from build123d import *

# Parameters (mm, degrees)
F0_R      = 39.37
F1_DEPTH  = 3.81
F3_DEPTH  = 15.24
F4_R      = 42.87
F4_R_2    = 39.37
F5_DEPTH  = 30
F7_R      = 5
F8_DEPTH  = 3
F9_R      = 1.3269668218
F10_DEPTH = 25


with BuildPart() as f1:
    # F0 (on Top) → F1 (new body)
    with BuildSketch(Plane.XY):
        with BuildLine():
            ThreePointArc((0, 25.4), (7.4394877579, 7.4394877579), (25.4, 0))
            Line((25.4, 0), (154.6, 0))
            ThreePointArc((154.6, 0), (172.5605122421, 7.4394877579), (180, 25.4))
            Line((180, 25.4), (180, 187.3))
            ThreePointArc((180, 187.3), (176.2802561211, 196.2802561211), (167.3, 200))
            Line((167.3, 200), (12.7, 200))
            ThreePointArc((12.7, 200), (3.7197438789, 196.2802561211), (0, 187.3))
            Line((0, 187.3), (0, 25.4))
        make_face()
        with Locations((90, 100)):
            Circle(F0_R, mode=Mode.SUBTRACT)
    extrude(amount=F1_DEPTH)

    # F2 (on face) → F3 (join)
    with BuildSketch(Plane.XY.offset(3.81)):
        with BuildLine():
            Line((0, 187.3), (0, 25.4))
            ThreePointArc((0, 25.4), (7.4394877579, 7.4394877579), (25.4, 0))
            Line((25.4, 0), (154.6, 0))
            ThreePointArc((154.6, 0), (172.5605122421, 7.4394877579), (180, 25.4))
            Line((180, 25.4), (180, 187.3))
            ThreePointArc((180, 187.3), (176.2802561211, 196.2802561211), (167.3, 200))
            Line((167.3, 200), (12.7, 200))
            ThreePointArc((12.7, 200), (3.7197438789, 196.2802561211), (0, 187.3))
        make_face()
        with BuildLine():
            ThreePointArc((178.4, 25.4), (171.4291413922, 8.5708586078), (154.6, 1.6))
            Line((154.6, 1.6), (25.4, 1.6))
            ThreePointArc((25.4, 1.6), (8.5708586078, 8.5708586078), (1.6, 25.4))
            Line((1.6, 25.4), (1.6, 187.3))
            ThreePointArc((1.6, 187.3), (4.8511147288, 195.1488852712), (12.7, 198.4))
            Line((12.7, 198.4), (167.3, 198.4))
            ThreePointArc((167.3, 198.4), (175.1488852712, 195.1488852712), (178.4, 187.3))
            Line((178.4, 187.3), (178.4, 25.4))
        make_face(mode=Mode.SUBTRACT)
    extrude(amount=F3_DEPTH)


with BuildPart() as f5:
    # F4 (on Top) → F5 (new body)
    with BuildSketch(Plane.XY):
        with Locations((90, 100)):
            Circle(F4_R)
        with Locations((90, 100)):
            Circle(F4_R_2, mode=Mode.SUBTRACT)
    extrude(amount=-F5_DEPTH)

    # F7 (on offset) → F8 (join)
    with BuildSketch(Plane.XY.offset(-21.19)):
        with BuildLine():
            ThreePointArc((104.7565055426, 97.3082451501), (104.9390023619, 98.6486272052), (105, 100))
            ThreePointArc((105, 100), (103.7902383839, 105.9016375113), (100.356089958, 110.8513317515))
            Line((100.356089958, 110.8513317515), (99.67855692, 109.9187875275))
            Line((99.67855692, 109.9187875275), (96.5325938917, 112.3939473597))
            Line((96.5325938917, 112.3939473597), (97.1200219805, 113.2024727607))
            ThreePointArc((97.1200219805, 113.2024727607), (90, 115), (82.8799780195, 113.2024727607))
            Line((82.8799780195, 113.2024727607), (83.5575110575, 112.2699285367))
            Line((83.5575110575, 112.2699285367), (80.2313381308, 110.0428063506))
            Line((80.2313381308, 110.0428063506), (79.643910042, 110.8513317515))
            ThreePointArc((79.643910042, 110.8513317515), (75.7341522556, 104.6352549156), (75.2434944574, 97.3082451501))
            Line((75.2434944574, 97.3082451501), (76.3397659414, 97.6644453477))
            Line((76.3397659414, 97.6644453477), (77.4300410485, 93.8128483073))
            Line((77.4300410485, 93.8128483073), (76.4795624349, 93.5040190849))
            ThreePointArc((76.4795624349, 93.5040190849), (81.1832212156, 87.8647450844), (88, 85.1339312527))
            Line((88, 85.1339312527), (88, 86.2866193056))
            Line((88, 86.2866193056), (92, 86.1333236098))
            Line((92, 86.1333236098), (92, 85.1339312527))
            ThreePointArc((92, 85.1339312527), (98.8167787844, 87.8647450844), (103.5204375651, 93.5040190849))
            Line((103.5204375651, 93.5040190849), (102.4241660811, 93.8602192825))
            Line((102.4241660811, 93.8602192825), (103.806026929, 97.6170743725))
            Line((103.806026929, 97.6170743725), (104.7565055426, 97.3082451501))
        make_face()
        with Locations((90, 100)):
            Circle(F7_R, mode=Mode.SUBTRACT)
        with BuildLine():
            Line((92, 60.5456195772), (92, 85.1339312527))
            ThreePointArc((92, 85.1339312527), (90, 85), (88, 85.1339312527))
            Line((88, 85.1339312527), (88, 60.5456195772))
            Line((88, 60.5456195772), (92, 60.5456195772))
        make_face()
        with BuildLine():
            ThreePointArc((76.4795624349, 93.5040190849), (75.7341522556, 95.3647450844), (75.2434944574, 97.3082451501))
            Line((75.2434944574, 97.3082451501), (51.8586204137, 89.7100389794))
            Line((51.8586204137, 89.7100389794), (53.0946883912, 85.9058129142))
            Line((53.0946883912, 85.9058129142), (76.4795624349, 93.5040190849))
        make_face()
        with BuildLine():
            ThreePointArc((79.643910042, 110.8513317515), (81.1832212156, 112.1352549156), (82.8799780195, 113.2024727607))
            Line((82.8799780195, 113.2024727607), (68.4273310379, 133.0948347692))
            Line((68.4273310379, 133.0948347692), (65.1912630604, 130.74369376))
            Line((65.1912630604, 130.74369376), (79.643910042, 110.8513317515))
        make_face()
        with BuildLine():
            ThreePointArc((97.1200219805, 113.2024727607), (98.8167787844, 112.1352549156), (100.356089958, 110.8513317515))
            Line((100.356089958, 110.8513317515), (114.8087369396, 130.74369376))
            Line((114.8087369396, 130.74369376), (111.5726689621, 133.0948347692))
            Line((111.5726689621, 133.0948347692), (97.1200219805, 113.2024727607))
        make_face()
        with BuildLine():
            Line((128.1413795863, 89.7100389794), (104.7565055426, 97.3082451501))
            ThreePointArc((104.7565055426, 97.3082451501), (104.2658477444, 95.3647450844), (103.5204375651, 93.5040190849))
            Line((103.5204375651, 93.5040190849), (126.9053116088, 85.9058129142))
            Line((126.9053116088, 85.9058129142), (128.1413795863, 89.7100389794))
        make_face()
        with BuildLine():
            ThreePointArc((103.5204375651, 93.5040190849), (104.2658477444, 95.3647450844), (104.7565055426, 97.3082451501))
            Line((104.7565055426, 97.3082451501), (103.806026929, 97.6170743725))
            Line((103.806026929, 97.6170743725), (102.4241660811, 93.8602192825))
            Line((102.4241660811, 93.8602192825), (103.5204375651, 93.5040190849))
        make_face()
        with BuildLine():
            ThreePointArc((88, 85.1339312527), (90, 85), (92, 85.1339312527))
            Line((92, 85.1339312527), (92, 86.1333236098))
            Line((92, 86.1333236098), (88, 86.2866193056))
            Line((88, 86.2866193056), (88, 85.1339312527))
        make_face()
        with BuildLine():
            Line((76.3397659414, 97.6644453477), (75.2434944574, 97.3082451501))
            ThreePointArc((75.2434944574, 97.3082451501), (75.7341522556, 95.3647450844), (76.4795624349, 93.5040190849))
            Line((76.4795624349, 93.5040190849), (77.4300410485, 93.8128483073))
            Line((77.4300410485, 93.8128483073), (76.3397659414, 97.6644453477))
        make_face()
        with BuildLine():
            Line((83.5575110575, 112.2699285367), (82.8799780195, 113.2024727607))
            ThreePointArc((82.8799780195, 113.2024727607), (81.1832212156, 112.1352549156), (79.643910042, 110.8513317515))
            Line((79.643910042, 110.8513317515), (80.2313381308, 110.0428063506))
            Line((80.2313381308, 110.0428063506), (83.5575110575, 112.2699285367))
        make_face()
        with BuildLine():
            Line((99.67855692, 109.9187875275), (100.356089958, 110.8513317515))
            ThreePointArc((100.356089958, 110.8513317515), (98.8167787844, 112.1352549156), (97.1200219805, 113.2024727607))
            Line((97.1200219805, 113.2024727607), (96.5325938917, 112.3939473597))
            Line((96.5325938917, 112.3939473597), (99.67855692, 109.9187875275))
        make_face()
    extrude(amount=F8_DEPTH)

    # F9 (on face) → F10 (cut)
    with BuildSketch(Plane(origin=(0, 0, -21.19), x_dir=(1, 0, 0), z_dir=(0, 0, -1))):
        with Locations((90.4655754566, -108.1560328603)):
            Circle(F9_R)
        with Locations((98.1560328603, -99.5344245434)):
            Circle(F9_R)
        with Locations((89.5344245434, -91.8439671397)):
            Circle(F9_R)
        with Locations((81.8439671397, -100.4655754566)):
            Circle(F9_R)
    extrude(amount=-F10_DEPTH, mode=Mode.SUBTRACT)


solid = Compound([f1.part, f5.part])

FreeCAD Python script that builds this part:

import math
import FreeCAD as App
import Part
import Sketcher
Q = App.Units.Quantity

doc = App.newDocument("Part")
body = doc.addObject("PartDesign::Body", "Body")

# Sketch on XY plane
sketch1 = doc.addObject("Sketcher::SketchObject", "Sketch")
body.addObject(sketch1)
sketch1.AttachmentSupport = (doc.XY_Plane, [""])
sketch1.MapMode = "FlatFace"
sketch1.addGeometry([
    Part.ArcOfCircle(Part.Circle(App.Vector(25.4, 25.4, 0), App.Vector(0, 0, 1), 25.4), math.radians(180), math.radians(270)),  # 0
    Part.LineSegment(App.Vector(25.4, 0, 0), App.Vector(154.6, 0, 0)),  # 1
    Part.ArcOfCircle(Part.Circle(App.Vector(154.6, 25.4, 0), App.Vector(0, 0, 1), 25.4), math.radians(-90), math.radians(0)),  # 2
    Part.LineSegment(App.Vector(180, 25.4, 0), App.Vector(180, 187.3, 0)),  # 3
    Part.ArcOfCircle(Part.Circle(App.Vector(167.3, 187.3, 0), App.Vector(0, 0, 1), 12.7), math.radians(0), math.radians(90)),  # 4
    Part.LineSegment(App.Vector(167.3, 200, 0), App.Vector(12.7, 200, 0)),  # 5
    Part.ArcOfCircle(Part.Circle(App.Vector(12.7, 187.3, 0), App.Vector(0, 0, 1), 12.7), math.radians(90), math.radians(180)),  # 6
    Part.LineSegment(App.Vector(0, 187.3, 0), App.Vector(0, 25.4, 0)),  # 7
    Part.Circle(App.Vector(90, 100, 0), App.Vector(0, 0, 1), 39.37),  # 8
], False)
sketch1.addConstraint([
    Sketcher.Constraint("Tangent", 0, 2, 1, 1),
    Sketcher.Constraint("Tangent", 1, 2, 2, 1),
    Sketcher.Constraint("Tangent", 2, 2, 3, 1),
    Sketcher.Constraint("Tangent", 3, 2, 4, 1),
    Sketcher.Constraint("Tangent", 4, 2, 5, 1),
    Sketcher.Constraint("Tangent", 5, 2, 6, 1),
    Sketcher.Constraint("Tangent", 6, 2, 7, 1),
    Sketcher.Constraint("Tangent", 7, 2, 0, 1),
    Sketcher.Constraint("Horizontal", 1),
    Sketcher.Constraint("Vertical", 3),
    Sketcher.Constraint("Horizontal", 5),
    Sketcher.Constraint("Vertical", 7),
    Sketcher.Constraint("Equal", 0, 2),
    Sketcher.Constraint("Equal", 4, 6),
    Sketcher.Constraint("PointOnObject", 0, 2, -1),
    Sketcher.Constraint("PointOnObject", 6, 2, -2),
    Sketcher.Constraint("Radius", 0, Q("25.4 mm")),
    Sketcher.Constraint("Radius", 4, Q("12.7 mm")),
    Sketcher.Constraint("Diameter", 8, Q("78.74 mm")),
    Sketcher.Constraint("DistanceX", 1, 1, 1, 2, Q("129.2 mm")),
    Sketcher.Constraint("DistanceY", 3, 1, 3, 2, Q("161.9 mm")),
    Sketcher.Constraint("DistanceX", -1, 1, 8, 3, Q("90 mm")),
    Sketcher.Constraint("DistanceY", -1, 1, 8, 3, Q("100 mm")),
])
pad1 = doc.addObject("PartDesign::Pad", "Pad")
body.addObject(pad1)
pad1.Profile = sketch1
pad1.Length = 3.81

# Sketch on XY plane
sketch2 = doc.addObject("Sketcher::SketchObject", "Sketch001")
body.addObject(sketch2)
sketch2.AttachmentSupport = (doc.XY_Plane, [""])
sketch2.MapMode = "FlatFace"
sketch2.AttachmentOffset = App.Placement(App.Vector(0, 0, 3.81), App.Rotation())
sketch2.addGeometry([
    Part.LineSegment(App.Vector(0, 187.3, 0), App.Vector(0, 25.4, 0)),  # 0
    Part.ArcOfCircle(Part.Circle(App.Vector(25.4, 25.4, 0), App.Vector(0, 0, 1), 25.4), math.radians(180), math.radians(270)),  # 1
    Part.LineSegment(App.Vector(25.4, 0, 0), App.Vector(154.6, 0, 0)),  # 2
    Part.ArcOfCircle(Part.Circle(App.Vector(154.6, 25.4, 0), App.Vector(0, 0, 1), 25.4), math.radians(-90), math.radians(0)),  # 3
    Part.LineSegment(App.Vector(180, 25.4, 0), App.Vector(180, 187.3, 0)),  # 4
    Part.ArcOfCircle(Part.Circle(App.Vector(167.3, 187.3, 0), App.Vector(0, 0, 1), 12.7), math.radians(0), math.radians(90)),  # 5
    Part.LineSegment(App.Vector(167.3, 200, 0), App.Vector(12.7, 200, 0)),  # 6
    Part.ArcOfCircle(Part.Circle(App.Vector(12.7, 187.3, 0), App.Vector(0, 0, 1), 12.7), math.radians(90), math.radians(180)),  # 7
    Part.LineSegment(App.Vector(178.4, 187.3, 0), App.Vector(178.4, 25.4, 0)),  # 8
    Part.ArcOfCircle(Part.Circle(App.Vector(154.6, 25.4, 0), App.Vector(0, 0, 1), 23.8), math.radians(-90), math.radians(0)),  # 9
    Part.LineSegment(App.Vector(154.6, 1.6, 0), App.Vector(25.4, 1.6, 0)),  # 10
    Part.ArcOfCircle(Part.Circle(App.Vector(25.4, 25.4, 0), App.Vector(0, 0, 1), 23.8), math.radians(180), math.radians(270)),  # 11
    Part.LineSegment(App.Vector(1.6, 25.4, 0), App.Vector(1.6, 187.3, 0)),  # 12
    Part.ArcOfCircle(Part.Circle(App.Vector(12.7, 187.3, 0), App.Vector(0, 0, 1), 11.1), math.radians(90), math.radians(180)),  # 13
    Part.LineSegment(App.Vector(12.7, 198.4, 0), App.Vector(167.3, 198.4, 0)),  # 14
    Part.ArcOfCircle(Part.Circle(App.Vector(167.3, 187.3, 0), App.Vector(0, 0, 1), 11.1), math.radians(0), math.radians(90)),  # 15
], False)
sketch2.addConstraint([
    Sketcher.Constraint("Tangent", 0, 2, 1, 1),
    Sketcher.Constraint("Tangent", 1, 2, 2, 1),
    Sketcher.Constraint("Tangent", 2, 2, 3, 1),
    Sketcher.Constraint("Tangent", 3, 2, 4, 1),
    Sketcher.Constraint("Tangent", 4, 2, 5, 1),
    Sketcher.Constraint("Tangent", 5, 2, 6, 1),
    Sketcher.Constraint("Tangent", 6, 2, 7, 1),
    Sketcher.Constraint("Tangent", 7, 2, 0, 1),
    Sketcher.Constraint("Tangent", 8, 2, 9, 2),
    Sketcher.Constraint("Tangent", 9, 1, 10, 1),
    Sketcher.Constraint("Tangent", 10, 2, 11, 2),
    Sketcher.Constraint("Tangent", 11, 1, 12, 1),
    Sketcher.Constraint("Tangent", 12, 2, 13, 2),
    Sketcher.Constraint("Tangent", 13, 1, 14, 1),
    Sketcher.Constraint("Tangent", 14, 2, 15, 2),
    Sketcher.Constraint("Tangent", 15, 1, 8, 1),
    Sketcher.Constraint("Vertical", 0),
    Sketcher.Constraint("Horizontal", 2),
    Sketcher.Constraint("Vertical", 4),
    Sketcher.Constraint("Horizontal", 6),
    Sketcher.Constraint("Vertical", 8),
    Sketcher.Constraint("Horizontal", 10),
    Sketcher.Constraint("Vertical", 12),
    Sketcher.Constraint("Horizontal", 14),
    Sketcher.Constraint("Coincident", 9, 3, 3, 3),
    Sketcher.Constraint("Coincident", 11, 3, 1, 3),
    Sketcher.Constraint("Coincident", 13, 3, 7, 3),
    Sketcher.Constraint("Equal", 1, 3),
    Sketcher.Constraint("Equal", 5, 7),
    Sketcher.Constraint("Equal", 13, 15),
    Sketcher.Constraint("PointOnObject", 0, 2, -2),
    Sketcher.Constraint("PointOnObject", 1, 2, -1),
    Sketcher.Constraint("Radius", 1, Q("25.4 mm")),
    Sketcher.Constraint("Radius", 5, Q("12.7 mm")),
    Sketcher.Constraint("Radius", 9, Q("23.8 mm")),
    Sketcher.Constraint("DistanceX", 2, 1, 2, 2, Q("129.2 mm")),
    Sketcher.Constraint("DistanceY", 0, 2, 0, 1, Q("161.9 mm")),
])
pad2 = doc.addObject("PartDesign::Pad", "Pad001")
body.addObject(pad2)
pad2.Profile = sketch2
pad2.Length = 15.24
body2 = doc.addObject("PartDesign::Body", "Body001")

# Sketch on XY plane
sketch3 = doc.addObject("Sketcher::SketchObject", "Sketch002")
body2.addObject(sketch3)
sketch3.AttachmentSupport = (doc.getObject("XY_Plane001"), [""])
sketch3.MapMode = "FlatFace"
sketch3.addGeometry([
    Part.Circle(App.Vector(90, 100, 0), App.Vector(0, 0, 1), 42.87),
    Part.Circle(App.Vector(90, 100, 0), App.Vector(0, 0, 1), 39.37),
], False)
sketch3.addConstraint([
    Sketcher.Constraint("Coincident", 1, 3, 0, 3),
    Sketcher.Constraint("Diameter", 0, Q("85.74 mm")),
    Sketcher.Constraint("Diameter", 1, Q("78.74 mm")),
    Sketcher.Constraint("DistanceX", -1, 1, 0, 3, Q("90 mm")),
    Sketcher.Constraint("DistanceY", -1, 1, 0, 3, Q("100 mm")),
])
pad3 = doc.addObject("PartDesign::Pad", "Pad002")
body2.addObject(pad3)
pad3.Profile = sketch3
pad3.Length = 30
pad3.Reversed = True

# Sketch on XY plane
sketch4 = doc.addObject("Sketcher::SketchObject", "Sketch003")
body2.addObject(sketch4)
sketch4.AttachmentSupport = (doc.getObject("XY_Plane001"), [""])
sketch4.MapMode = "FlatFace"
sketch4.AttachmentOffset = App.Placement(App.Vector(0, 0, -21.19), App.Rotation())
sketch4.addGeometry([
    Part.ArcOfCircle(Part.Circle(App.Vector(90, 100, 0), App.Vector(0, 0, 1), 15), math.radians(-10.337744), math.radians(0)),  # 0
    Part.ArcOfCircle(Part.Circle(App.Vector(90, 100, 0), App.Vector(0, 0, 1), 15), math.radians(0), math.radians(46.337744)),  # 1
    Part.LineSegment(App.Vector(100.35609, 110.851332, 0), App.Vector(114.808737, 130.743694, 0)),  # 2
    Part.LineSegment(App.Vector(114.808737, 130.743694, 0), App.Vector(111.572669, 133.094835, 0)),  # 3
    Part.LineSegment(App.Vector(111.572669, 133.094835, 0), App.Vector(97.120022, 113.202473, 0)),  # 4
    Part.ArcOfCircle(Part.Circle(App.Vector(90, 100, 0), App.Vector(0, 0, 1), 15), math.radians(61.662256), math.radians(118.337744)),  # 5
    Part.LineSegment(App.Vector(82.879978, 113.202473, 0), App.Vector(68.427331, 133.094835, 0)),  # 6
    Part.LineSegment(App.Vector(68.427331, 133.094835, 0), App.Vector(65.191263, 130.743694, 0)),  # 7
    Part.LineSegment(App.Vector(65.191263, 130.743694, 0), App.Vector(79.64391, 110.851332, 0)),  # 8
    Part.ArcOfCircle(Part.Circle(App.Vector(90, 100, 0), App.Vector(0, 0, 1), 15), math.radians(133.662256), math.radians(190.337744)),  # 9
    Part.LineSegment(App.Vector(75.243494, 97.308245, 0), App.Vector(51.85862, 89.710039, 0)),  # 10
    Part.LineSegment(App.Vector(51.85862, 89.710039, 0), App.Vector(53.094688, 85.905813, 0)),  # 11
    Part.LineSegment(App.Vector(53.094688, 85.905813, 0), App.Vector(76.479562, 93.504019, 0)),  # 12
    Part.ArcOfCircle(Part.Circle(App.Vector(90, 100, 0), App.Vector(0, 0, 1), 15), math.radians(-154.337744), math.radians(-97.662256)),  # 13
    Part.LineSegment(App.Vector(88, 85.133931, 0), App.Vector(88, 60.54562, 0)),  # 14
    Part.LineSegment(App.Vector(88, 60.54562, 0), App.Vector(92, 60.54562, 0)),  # 15
    Part.LineSegment(App.Vector(92, 60.54562, 0), App.Vector(92, 85.133931, 0)),  # 16
    Part.ArcOfCircle(Part.Circle(App.Vector(90, 100, 0), App.Vector(0, 0, 1), 15), math.radians(-82.337744), math.radians(-25.662256)),  # 17
    Part.LineSegment(App.Vector(103.520438, 93.504019, 0), App.Vector(126.905312, 85.905813, 0)),  # 18
    Part.LineSegment(App.Vector(126.905312, 85.905813, 0), App.Vector(128.14138, 89.710039, 0)),  # 19
    Part.LineSegment(App.Vector(128.14138, 89.710039, 0), App.Vector(104.756506, 97.308245, 0)),  # 20
    Part.Circle(App.Vector(90, 100, 0), App.Vector(0, 0, 1), 5),  # 21
], False)
sketch4.addConstraint([
    Sketcher.Constraint("Tangent", 0, 2, 1, 1),
    Sketcher.Constraint("Coincident", 1, 2, 2, 1),
    Sketcher.Constraint("Coincident", 2, 2, 3, 1),
    Sketcher.Constraint("Coincident", 3, 2, 4, 1),
    Sketcher.Constraint("Coincident", 4, 2, 5, 1),
    Sketcher.Constraint("Coincident", 5, 2, 6, 1),
    Sketcher.Constraint("Coincident", 6, 2, 7, 1),
    Sketcher.Constraint("Coincident", 7, 2, 8, 1),
    Sketcher.Constraint("Coincident", 8, 2, 9, 1),
    Sketcher.Constraint("Coincident", 9, 2, 10, 1),
    Sketcher.Constraint("Coincident", 10, 2, 11, 1),
    Sketcher.Constraint("Coincident", 11, 2, 12, 1),
    Sketcher.Constraint("Coincident", 12, 2, 13, 1),
    Sketcher.Constraint("Coincident", 13, 2, 14, 1),
    Sketcher.Constraint("Coincident", 14, 2, 15, 1),
    Sketcher.Constraint("Coincident", 15, 2, 16, 1),
    Sketcher.Constraint("Coincident", 16, 2, 17, 1),
    Sketcher.Constraint("Coincident", 17, 2, 18, 1),
    Sketcher.Constraint("Coincident", 18, 2, 19, 1),
    Sketcher.Constraint("Coincident", 19, 2, 20, 1),
    Sketcher.Constraint("Coincident", 20, 2, 0, 1),
    Sketcher.Constraint("Vertical", 14),
    Sketcher.Constraint("Horizontal", 15),
    Sketcher.Constraint("Vertical", 16),
    Sketcher.Constraint("Coincident", 5, 3, 0, 3),
    Sketcher.Constraint("Coincident", 9, 3, 0, 3),
    Sketcher.Constraint("Coincident", 13, 3, 0, 3),
    Sketcher.Constraint("Coincident", 17, 3, 0, 3),
    Sketcher.Constraint("Coincident", 21, 3, 0, 3),
    Sketcher.Constraint("Equal", 0, 1),
    Sketcher.Constraint("Equal", 1, 5),
    Sketcher.Constraint("Equal", 5, 9),
    Sketcher.Constraint("Equal", 9, 13),
    Sketcher.Constraint("Equal", 13, 17),
    Sketcher.Constraint("Perpendicular", 2, 3),
    Sketcher.Constraint("Perpendicular", 3, 4),
    Sketcher.Constraint("Perpendicular", 6, 7),
    Sketcher.Constraint("Perpendicular", 7, 8),
    Sketcher.Constraint("Perpendicular", 10, 11),
    Sketcher.Constraint("Perpendicular", 11, 12),
    Sketcher.Constraint("Perpendicular", 18, 19),
    Sketcher.Constraint("Perpendicular", 19, 20),
    Sketcher.Constraint("Horizontal", 21, 3, 0, 2),
    Sketcher.Constraint("Horizontal", 4, 2, 5, 2),
    Sketcher.Constraint("Horizontal", 3, 2, 6, 2),
    Sketcher.Constraint("Horizontal", 2, 2, 7, 2),
    Sketcher.Constraint("Horizontal", 1, 2, 8, 2),
    Sketcher.Constraint("Horizontal", 13, 2, 16, 2),
    Sketcher.Constraint("Horizontal", 12, 2, 17, 2),
    Sketcher.Constraint("Horizontal", 11, 2, 18, 2),
    Sketcher.Constraint("Horizontal", 10, 2, 19, 2),
    Sketcher.Constraint("Equal", 2, 4),
    Sketcher.Constraint("Equal", 8, 10),
    Sketcher.Constraint("Equal", 7, 11),
    Sketcher.Constraint("Equal", 10, 12),
    Sketcher.Constraint("Equal", 12, 18),
    Sketcher.Constraint("Diameter", 21, Q("10 mm")),
    Sketcher.Constraint("Radius", 0, Q("15 mm")),
    Sketcher.Constraint("DistanceX", 15, 1, 15, 2, Q("4 mm")),
    Sketcher.Constraint("Angle", 2, Q("54 deg")),
    Sketcher.Constraint("Angle", 10, Q("-162 deg")),
    Sketcher.Constraint("Distance", 3, Q("4 mm")),
    Sketcher.Constraint("DistanceX", -1, 1, 0, 3, Q("90 mm")),
    Sketcher.Constraint("DistanceY", -1, 1, 0, 3, Q("100 mm")),
    Sketcher.Constraint("DistanceY", 14, 2, 14, 1, Q("24.588312 mm")),
    Sketcher.Constraint("Distance", 2, Q("24.588312 mm")),
])
pad4 = doc.addObject("PartDesign::Pad", "Pad003")
body2.addObject(pad4)
pad4.Profile = sketch4
pad4.Length = 3

# Sketch on XY plane
sketch5 = doc.addObject("Sketcher::SketchObject", "Sketch004")
body2.addObject(sketch5)
sketch5.AttachmentSupport = (doc.getObject("XY_Plane001"), [""])
sketch5.MapMode = "FlatFace"
sketch5.AttachmentOffset = App.Placement(App.Vector(0, 0, -21.19), App.Rotation())
sketch5.addGeometry([
    Part.Circle(App.Vector(90.465575, 108.156033, 0), App.Vector(0, 0, 1), 1.326967),
    Part.Circle(App.Vector(98.156033, 99.534425, 0), App.Vector(0, 0, 1), 1.326967),
    Part.Circle(App.Vector(89.534425, 91.843967, 0), App.Vector(0, 0, 1), 1.326967),
    Part.Circle(App.Vector(81.843967, 100.465575, 0), App.Vector(0, 0, 1), 1.326967),
], False)
sketch5.addConstraint([
    Sketcher.Constraint("Equal", 0, 1),
    Sketcher.Constraint("Equal", 1, 2),
    Sketcher.Constraint("Equal", 2, 3),
    Sketcher.Constraint("Diameter", 0, Q("2.653934 mm")),
    Sketcher.Constraint("DistanceY", 1, 3, 0, 3, Q("8.621608 mm")),
    Sketcher.Constraint("DistanceX", 2, 3, 1, 3, Q("8.621608 mm")),
    Sketcher.Constraint("DistanceX", 2, 3, 0, 3, Q("0.931151 mm")),
    Sketcher.Constraint("DistanceX", 3, 3, 0, 3, Q("8.621608 mm")),
    Sketcher.Constraint("DistanceY", 2, 3, 3, 3, Q("8.621608 mm")),
    Sketcher.Constraint("DistanceY", 1, 3, 3, 3, Q("0.931151 mm")),
    Sketcher.Constraint("DistanceX", -1, 1, 0, 3, Q("90.465575 mm")),
    Sketcher.Constraint("DistanceY", -1, 1, 0, 3, Q("108.156033 mm")),
])
pocket1 = doc.addObject("PartDesign::Pocket", "Pocket")
body2.addObject(pocket1)
pocket1.Profile = sketch5
pocket1.Length = 25
pocket1.Reversed = True

doc.recompute()
